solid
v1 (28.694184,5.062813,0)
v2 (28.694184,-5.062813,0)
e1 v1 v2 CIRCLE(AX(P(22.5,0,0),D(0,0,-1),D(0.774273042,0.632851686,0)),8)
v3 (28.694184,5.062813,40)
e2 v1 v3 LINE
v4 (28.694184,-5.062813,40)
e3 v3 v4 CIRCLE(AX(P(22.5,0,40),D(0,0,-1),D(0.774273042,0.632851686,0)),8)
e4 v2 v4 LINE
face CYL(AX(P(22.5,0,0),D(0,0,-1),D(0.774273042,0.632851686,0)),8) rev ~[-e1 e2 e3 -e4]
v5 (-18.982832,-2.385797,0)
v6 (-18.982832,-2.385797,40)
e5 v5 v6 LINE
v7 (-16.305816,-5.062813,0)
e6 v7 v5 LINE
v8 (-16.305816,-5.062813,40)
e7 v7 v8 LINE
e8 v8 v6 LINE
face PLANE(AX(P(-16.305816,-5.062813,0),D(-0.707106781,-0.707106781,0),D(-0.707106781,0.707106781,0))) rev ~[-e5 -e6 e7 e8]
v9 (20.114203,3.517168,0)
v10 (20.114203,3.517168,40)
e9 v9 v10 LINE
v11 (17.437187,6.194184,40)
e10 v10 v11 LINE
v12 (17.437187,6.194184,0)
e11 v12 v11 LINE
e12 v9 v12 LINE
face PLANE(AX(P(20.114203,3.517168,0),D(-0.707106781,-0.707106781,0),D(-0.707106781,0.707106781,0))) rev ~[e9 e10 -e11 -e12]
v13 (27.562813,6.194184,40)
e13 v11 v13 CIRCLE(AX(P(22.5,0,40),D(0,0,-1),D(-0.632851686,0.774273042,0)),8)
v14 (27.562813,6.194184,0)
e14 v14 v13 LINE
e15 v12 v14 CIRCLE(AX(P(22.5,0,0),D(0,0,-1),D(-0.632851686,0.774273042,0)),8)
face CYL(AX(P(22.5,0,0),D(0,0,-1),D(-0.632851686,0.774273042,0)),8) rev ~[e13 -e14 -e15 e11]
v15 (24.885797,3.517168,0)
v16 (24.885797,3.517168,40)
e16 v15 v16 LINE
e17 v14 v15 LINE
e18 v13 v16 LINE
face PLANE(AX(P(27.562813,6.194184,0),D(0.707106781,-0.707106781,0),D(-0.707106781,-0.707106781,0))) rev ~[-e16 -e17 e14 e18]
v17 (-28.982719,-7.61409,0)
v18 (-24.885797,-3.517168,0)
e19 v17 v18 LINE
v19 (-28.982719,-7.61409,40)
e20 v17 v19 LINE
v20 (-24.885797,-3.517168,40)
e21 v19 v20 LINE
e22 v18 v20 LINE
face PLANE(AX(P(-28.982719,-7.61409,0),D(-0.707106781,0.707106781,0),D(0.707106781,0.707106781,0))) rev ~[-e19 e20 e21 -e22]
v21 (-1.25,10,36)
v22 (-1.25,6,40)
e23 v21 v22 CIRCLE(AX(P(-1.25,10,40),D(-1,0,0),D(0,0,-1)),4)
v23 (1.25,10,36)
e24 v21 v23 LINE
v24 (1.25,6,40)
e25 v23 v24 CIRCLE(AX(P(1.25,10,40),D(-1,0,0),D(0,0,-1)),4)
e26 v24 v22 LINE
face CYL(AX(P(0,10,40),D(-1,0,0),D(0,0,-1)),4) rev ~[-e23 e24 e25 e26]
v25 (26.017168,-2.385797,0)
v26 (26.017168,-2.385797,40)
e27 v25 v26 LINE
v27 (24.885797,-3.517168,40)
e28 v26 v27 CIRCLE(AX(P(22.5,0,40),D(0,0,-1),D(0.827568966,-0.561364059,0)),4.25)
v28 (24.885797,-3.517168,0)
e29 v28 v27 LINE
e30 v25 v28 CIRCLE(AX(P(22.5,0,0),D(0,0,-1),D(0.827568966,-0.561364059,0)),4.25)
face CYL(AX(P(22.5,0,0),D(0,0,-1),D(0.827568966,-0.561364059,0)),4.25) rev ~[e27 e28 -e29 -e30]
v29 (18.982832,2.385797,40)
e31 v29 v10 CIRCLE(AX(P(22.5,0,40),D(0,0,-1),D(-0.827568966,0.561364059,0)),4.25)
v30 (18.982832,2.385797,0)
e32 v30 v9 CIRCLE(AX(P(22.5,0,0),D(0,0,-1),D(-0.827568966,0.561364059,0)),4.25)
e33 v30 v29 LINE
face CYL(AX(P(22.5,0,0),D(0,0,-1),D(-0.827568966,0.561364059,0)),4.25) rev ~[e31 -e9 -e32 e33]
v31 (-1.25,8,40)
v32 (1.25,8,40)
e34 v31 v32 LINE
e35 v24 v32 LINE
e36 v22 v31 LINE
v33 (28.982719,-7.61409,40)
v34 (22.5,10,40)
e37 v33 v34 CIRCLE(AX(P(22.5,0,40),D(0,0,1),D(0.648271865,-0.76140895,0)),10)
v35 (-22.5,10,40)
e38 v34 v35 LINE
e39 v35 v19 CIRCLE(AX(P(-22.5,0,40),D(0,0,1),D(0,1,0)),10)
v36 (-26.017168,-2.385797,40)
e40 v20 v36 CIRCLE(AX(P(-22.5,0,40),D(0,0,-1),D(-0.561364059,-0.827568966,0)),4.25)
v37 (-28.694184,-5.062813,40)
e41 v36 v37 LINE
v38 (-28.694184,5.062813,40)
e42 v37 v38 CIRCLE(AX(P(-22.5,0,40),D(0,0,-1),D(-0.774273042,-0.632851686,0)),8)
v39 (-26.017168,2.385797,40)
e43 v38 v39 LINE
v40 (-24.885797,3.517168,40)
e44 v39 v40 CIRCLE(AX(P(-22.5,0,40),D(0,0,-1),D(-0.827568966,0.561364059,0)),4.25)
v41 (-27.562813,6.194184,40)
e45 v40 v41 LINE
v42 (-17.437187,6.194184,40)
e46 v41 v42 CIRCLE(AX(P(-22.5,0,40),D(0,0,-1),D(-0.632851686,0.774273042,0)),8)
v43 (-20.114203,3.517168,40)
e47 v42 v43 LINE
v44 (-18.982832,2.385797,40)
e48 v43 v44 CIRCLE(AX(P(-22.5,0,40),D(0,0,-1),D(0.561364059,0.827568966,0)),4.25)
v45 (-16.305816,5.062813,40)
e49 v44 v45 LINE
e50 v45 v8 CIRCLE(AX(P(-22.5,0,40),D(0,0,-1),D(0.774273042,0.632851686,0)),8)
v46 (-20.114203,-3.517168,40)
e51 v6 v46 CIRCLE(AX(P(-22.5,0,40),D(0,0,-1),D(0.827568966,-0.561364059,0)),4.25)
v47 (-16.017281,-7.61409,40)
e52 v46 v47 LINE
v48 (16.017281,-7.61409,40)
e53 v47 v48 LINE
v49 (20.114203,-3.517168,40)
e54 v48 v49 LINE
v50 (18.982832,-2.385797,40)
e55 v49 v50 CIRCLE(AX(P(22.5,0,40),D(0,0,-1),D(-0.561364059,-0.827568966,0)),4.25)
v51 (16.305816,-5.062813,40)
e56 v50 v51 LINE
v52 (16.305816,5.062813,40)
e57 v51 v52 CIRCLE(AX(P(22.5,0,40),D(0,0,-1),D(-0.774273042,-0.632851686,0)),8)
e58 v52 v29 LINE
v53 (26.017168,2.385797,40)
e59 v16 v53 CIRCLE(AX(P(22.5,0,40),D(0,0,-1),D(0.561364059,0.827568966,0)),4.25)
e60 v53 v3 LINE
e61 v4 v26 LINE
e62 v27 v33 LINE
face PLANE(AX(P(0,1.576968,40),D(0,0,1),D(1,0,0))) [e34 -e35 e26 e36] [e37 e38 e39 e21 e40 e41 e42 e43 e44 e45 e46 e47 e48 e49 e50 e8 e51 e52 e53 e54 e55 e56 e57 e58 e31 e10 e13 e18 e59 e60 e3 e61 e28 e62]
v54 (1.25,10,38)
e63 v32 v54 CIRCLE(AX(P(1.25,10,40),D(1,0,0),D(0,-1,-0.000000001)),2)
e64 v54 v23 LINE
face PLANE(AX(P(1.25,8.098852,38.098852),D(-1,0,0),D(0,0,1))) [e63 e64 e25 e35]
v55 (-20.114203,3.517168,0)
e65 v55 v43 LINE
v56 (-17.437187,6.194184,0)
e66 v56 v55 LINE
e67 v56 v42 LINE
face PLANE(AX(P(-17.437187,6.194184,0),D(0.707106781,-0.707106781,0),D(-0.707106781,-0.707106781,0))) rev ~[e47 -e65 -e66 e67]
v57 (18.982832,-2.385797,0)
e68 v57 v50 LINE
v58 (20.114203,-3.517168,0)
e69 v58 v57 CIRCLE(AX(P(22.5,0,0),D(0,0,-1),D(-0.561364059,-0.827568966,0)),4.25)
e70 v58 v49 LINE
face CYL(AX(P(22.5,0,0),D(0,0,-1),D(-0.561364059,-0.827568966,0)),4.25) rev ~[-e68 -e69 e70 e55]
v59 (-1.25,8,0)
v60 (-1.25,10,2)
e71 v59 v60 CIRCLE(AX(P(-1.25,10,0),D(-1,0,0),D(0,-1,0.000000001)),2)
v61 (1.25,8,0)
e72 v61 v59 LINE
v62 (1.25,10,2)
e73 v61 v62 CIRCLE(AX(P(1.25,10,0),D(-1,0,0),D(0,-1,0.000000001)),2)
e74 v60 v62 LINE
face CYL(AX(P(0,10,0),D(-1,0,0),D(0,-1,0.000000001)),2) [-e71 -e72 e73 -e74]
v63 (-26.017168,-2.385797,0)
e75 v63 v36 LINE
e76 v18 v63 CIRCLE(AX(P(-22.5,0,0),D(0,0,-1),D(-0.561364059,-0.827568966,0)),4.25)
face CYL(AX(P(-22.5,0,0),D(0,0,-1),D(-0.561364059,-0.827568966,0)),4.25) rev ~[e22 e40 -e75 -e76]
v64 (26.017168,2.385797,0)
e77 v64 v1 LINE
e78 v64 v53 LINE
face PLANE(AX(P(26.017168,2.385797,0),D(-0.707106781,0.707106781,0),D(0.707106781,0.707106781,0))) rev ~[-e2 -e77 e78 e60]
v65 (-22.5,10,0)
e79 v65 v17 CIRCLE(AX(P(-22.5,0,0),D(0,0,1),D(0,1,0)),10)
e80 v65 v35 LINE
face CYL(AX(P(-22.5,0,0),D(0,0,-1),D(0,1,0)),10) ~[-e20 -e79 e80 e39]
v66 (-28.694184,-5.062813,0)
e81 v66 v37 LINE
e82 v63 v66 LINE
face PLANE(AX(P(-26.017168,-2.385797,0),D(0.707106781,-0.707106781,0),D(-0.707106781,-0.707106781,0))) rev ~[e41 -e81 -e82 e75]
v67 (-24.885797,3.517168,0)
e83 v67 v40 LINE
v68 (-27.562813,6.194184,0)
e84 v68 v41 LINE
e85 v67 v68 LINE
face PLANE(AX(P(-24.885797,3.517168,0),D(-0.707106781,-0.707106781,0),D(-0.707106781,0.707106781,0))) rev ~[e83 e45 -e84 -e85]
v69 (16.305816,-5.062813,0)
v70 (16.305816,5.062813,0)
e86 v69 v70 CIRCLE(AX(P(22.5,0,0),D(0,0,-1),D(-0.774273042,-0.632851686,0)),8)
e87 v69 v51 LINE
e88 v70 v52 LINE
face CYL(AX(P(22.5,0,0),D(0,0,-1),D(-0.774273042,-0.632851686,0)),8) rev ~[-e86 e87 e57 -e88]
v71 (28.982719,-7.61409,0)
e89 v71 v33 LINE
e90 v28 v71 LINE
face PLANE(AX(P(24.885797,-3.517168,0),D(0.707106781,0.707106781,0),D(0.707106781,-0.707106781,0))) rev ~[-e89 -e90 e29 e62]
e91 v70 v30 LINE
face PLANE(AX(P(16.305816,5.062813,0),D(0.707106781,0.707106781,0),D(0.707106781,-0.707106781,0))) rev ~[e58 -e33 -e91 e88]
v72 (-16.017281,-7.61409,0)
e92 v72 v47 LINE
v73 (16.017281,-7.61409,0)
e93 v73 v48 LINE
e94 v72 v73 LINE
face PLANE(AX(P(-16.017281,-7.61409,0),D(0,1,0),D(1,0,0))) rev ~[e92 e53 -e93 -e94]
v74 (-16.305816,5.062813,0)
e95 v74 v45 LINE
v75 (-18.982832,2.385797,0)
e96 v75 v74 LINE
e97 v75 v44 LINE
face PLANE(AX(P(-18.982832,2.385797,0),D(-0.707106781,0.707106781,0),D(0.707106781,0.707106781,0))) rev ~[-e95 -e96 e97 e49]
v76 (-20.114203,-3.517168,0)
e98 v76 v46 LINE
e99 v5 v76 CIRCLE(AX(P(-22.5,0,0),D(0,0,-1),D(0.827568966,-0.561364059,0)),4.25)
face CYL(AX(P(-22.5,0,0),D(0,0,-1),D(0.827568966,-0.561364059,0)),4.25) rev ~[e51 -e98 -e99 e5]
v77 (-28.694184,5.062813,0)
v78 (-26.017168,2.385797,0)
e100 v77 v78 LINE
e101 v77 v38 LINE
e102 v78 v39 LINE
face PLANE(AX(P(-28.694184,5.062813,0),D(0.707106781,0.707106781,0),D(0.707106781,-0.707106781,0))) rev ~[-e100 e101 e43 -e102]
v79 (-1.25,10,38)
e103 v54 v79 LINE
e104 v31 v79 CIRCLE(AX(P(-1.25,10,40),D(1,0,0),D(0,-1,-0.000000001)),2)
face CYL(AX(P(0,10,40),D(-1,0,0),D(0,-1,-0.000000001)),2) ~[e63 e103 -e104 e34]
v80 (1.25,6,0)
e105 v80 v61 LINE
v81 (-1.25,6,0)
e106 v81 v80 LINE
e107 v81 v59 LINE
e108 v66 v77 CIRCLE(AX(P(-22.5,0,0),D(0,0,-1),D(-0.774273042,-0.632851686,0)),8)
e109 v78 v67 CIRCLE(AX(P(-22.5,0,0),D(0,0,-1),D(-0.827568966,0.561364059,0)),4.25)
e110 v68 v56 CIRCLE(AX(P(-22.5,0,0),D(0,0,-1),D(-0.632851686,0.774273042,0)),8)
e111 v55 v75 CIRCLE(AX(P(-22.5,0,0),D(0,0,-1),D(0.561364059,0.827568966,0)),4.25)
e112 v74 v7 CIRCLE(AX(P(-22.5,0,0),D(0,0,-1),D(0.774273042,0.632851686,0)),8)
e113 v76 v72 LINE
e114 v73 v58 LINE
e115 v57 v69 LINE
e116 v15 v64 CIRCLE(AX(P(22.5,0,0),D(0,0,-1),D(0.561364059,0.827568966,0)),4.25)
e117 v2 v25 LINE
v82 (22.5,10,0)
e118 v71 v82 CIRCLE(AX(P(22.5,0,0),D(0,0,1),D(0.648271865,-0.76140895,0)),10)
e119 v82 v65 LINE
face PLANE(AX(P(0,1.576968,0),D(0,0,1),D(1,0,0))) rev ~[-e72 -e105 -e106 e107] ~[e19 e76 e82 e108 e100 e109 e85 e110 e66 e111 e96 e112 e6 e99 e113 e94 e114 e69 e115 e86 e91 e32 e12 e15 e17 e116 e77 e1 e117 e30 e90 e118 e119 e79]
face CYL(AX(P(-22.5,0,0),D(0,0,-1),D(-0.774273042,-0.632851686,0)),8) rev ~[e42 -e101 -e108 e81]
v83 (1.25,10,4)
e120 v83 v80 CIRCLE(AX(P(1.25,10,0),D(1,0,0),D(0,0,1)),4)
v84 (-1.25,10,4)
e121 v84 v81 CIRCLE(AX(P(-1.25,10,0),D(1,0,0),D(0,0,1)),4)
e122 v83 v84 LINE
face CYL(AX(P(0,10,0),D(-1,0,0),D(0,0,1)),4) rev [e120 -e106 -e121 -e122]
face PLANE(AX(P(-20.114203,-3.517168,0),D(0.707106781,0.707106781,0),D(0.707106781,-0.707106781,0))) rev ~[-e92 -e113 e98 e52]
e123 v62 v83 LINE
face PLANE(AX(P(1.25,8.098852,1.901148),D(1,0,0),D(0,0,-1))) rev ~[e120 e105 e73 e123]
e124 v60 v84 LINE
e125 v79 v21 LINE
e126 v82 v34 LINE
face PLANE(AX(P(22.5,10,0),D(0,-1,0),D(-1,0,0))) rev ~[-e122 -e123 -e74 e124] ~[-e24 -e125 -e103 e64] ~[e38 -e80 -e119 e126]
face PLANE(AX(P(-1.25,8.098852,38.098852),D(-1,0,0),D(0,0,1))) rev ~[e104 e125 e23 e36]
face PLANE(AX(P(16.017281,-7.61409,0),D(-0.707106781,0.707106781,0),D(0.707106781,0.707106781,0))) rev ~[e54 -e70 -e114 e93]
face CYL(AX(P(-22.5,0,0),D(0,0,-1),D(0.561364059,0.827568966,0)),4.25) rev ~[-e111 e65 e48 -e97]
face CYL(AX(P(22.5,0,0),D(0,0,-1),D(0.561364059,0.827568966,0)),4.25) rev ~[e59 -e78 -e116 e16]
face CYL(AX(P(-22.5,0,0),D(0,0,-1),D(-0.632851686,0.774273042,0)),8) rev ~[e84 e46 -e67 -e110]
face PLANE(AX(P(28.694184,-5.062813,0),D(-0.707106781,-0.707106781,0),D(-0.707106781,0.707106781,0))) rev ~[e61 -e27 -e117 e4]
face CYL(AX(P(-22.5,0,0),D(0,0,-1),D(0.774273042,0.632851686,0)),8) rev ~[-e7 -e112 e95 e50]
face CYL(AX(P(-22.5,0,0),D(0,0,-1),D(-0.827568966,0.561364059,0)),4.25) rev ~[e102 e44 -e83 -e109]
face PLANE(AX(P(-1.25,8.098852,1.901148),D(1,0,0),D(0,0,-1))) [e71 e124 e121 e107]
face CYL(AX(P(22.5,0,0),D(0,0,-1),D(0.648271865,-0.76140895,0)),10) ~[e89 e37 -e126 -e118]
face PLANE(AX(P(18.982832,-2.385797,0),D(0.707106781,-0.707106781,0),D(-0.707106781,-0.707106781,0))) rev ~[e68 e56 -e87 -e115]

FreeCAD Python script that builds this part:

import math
import FreeCAD as App
import Part
import Sketcher
from FreeCAD import Vector
Q = App.Units.Quantity

doc = App.newDocument("Part")
body = doc.addObject("PartDesign::Body", "Body")

# Sketch on XY plane
sketch1 = body.newObject("Sketcher::SketchObject", "Sketch")
sketch1.AttachmentSupport = (doc.getObject("XY_Plane"), [""])
sketch1.MapMode = "FlatFace"
sketch1.addGeometry([
    Part.LineSegment(Vector(-19, 2.4, 0), Vector(-16.3, 5.1, 0)),  # 0
    Part.ArcOfCircle(Part.Circle(Vector(-22.5, 0, 0), Vector(0, 0, 1), 8), math.radians(-39), math.radians(39)),  # 1
    Part.LineSegment(Vector(-16.3, -5.1, 0), Vector(-19, -2.4, 0)),  # 2
    Part.ArcOfCircle(Part.Circle(Vector(-22.5, 0, 0), Vector(0, 0, 1), 4.2), math.radians(-56), math.radians(-34)),  # 3
    Part.LineSegment(Vector(-20.1, -3.5, 0), Vector(-16, -7.6, 0)),  # 4
    Part.LineSegment(Vector(-16, -7.6, 0), Vector(16, -7.6, 0)),  # 5
    Part.LineSegment(Vector(16, -7.6, 0), Vector(20.1, -3.5, 0)),  # 6
    Part.ArcOfCircle(Part.Circle(Vector(22.5, 0, 0), Vector(0, 0, 1), 4.2), math.radians(-146), math.radians(-124)),  # 7
    Part.LineSegment(Vector(19, -2.4, 0), Vector(16.3, -5.1, 0)),  # 8
    Part.ArcOfCircle(Part.Circle(Vector(22.5, 0, 0), Vector(0, 0, 1), 8), math.radians(141), math.radians(219)),  # 9
    Part.LineSegment(Vector(16.3, 5.1, 0), Vector(19, 2.4, 0)),  # 10
    Part.ArcOfCircle(Part.Circle(Vector(22.5, 0, 0), Vector(0, 0, 1), 4.2), math.radians(124), math.radians(146)),  # 11
    Part.LineSegment(Vector(20.1, 3.5, 0), Vector(17.4, 6.2, 0)),  # 12
    Part.ArcOfCircle(Part.Circle(Vector(22.5, 0, 0), Vector(0, 0, 1), 8), math.radians(51), math.radians(129)),  # 13
    Part.LineSegment(Vector(27.6, 6.2, 0), Vector(24.9, 3.5, 0)),  # 14
    Part.ArcOfCircle(Part.Circle(Vector(22.5, 0, 0), Vector(0, 0, 1), 4.2), math.radians(34), math.radians(56)),  # 15
    Part.LineSegment(Vector(26, 2.4, 0), Vector(28.7, 5.1, 0)),  # 16
    Part.ArcOfCircle(Part.Circle(Vector(22.5, 0, 0), Vector(0, 0, 1), 8), math.radians(-39), math.radians(39)),  # 17
    Part.LineSegment(Vector(28.7, -5.1, 0), Vector(26, -2.4, 0)),  # 18
    Part.ArcOfCircle(Part.Circle(Vector(22.5, 0, 0), Vector(0, 0, 1), 4.2), math.radians(-56), math.radians(-34)),  # 19
    Part.LineSegment(Vector(24.9, -3.5, 0), Vector(29, -7.6, 0)),  # 20
    Part.ArcOfCircle(Part.Circle(Vector(22.5, 0, 0), Vector(0, 0, 1), 10), math.radians(-50), math.radians(90)),  # 21
    Part.LineSegment(Vector(22.5, 10, 0), Vector(-22.5, 10, 0)),  # 22
    Part.ArcOfCircle(Part.Circle(Vector(-22.5, 0, 0), Vector(0, 0, 1), 10), math.radians(90), math.radians(230)),  # 23
    Part.LineSegment(Vector(-29, -7.6, 0), Vector(-24.9, -3.5, 0)),  # 24
    Part.ArcOfCircle(Part.Circle(Vector(-22.5, 0, 0), Vector(0, 0, 1), 4.2), math.radians(-146), math.radians(-124)),  # 25
    Part.LineSegment(Vector(-26, -2.4, 0), Vector(-28.7, -5.1, 0)),  # 26
    Part.ArcOfCircle(Part.Circle(Vector(-22.5, 0, 0), Vector(0, 0, 1), 8), math.radians(141), math.radians(219)),  # 27
    Part.LineSegment(Vector(-28.7, 5.1, 0), Vector(-26, 2.4, 0)),  # 28
    Part.ArcOfCircle(Part.Circle(Vector(-22.5, 0, 0), Vector(0, 0, 1), 4.2), math.radians(124), math.radians(146)),  # 29
    Part.LineSegment(Vector(-24.9, 3.5, 0), Vector(-27.6, 6.2, 0)),  # 30
    Part.ArcOfCircle(Part.Circle(Vector(-22.5, 0, 0), Vector(0, 0, 1), 8), math.radians(51), math.radians(129)),  # 31
    Part.LineSegment(Vector(-17.4, 6.2, 0), Vector(-20.1, 3.5, 0)),  # 32
    Part.ArcOfCircle(Part.Circle(Vector(-22.5, 0, 0), Vector(0, 0, 1), 4.2), math.radians(34), math.radians(56)),  # 33
], False)
sketch1.addConstraint([
    Sketcher.Constraint("Coincident", 0, 2, 1, 2),
    Sketcher.Constraint("Coincident", 1, 1, 2, 1),
    Sketcher.Constraint("Coincident", 2, 2, 3, 2),
    Sketcher.Constraint("Coincident", 3, 1, 4, 1),
    Sketcher.Constraint("Coincident", 4, 2, 5, 1),
    Sketcher.Constraint("Coincident", 5, 2, 6, 1),
    Sketcher.Constraint("Coincident", 6, 2, 7, 2),
    Sketcher.Constraint("Coincident", 7, 1, 8, 1),
    Sketcher.Constraint("Coincident", 8, 2, 9, 2),
    Sketcher.Constraint("Coincident", 9, 1, 10, 1),
    Sketcher.Constraint("Coincident", 10, 2, 11, 2),
    Sketcher.Constraint("Coincident", 11, 1, 12, 1),
    Sketcher.Constraint("Coincident", 12, 2, 13, 2),
    Sketcher.Constraint("Coincident", 13, 1, 14, 1),
    Sketcher.Constraint("Coincident", 14, 2, 15, 2),
    Sketcher.Constraint("Coincident", 15, 1, 16, 1),
    Sketcher.Constraint("Coincident", 16, 2, 17, 2),
    Sketcher.Constraint("Coincident", 17, 1, 18, 1),
    Sketcher.Constraint("Coincident", 18, 2, 19, 2),
    Sketcher.Constraint("Coincident", 19, 1, 20, 1),
    Sketcher.Constraint("Coincident", 20, 2, 21, 1),
    Sketcher.Constraint("Tangent", 21, 2, 22, 1),
    Sketcher.Constraint("Tangent", 22, 2, 23, 1),
    Sketcher.Constraint("Coincident", 23, 2, 24, 1),
    Sketcher.Constraint("Coincident", 24, 2, 25, 2),
    Sketcher.Constraint("Coincident", 25, 1, 26, 1),
    Sketcher.Constraint("Coincident", 26, 2, 27, 2),
    Sketcher.Constraint("Coincident", 27, 1, 28, 1),
    Sketcher.Constraint("Coincident", 28, 2, 29, 2),
    Sketcher.Constraint("Coincident", 29, 1, 30, 1),
    Sketcher.Constraint("Coincident", 30, 2, 31, 2),
    Sketcher.Constraint("Coincident", 31, 1, 32, 1),
    Sketcher.Constraint("Coincident", 32, 2, 33, 2),
    Sketcher.Constraint("Coincident", 33, 1, 0, 1),
    Sketcher.Constraint("Horizontal", 5),
    Sketcher.Constraint("Horizontal", 22),
    Sketcher.Constraint("Coincident", 3, 3, 1, 3),
    Sketcher.Constraint("Coincident", 9, 3, 7, 3),
    Sketcher.Constraint("Coincident", 11, 3, 7, 3),
    Sketcher.Constraint("Coincident", 13, 3, 7, 3),
    Sketcher.Constraint("Coincident", 15, 3, 7, 3),
    Sketcher.Constraint("Coincident", 17, 3, 7, 3),
    Sketcher.Constraint("Coincident", 19, 3, 7, 3),
    Sketcher.Constraint("Coincident", 21, 3, 7, 3),
    Sketcher.Constraint("Coincident", 23, 3, 1, 3),
    Sketcher.Constraint("Coincident", 25, 3, 1, 3),
    Sketcher.Constraint("Coincident", 27, 3, 1, 3),
    Sketcher.Constraint("Coincident", 29, 3, 1, 3),
    Sketcher.Constraint("Coincident", 31, 3, 1, 3),
    Sketcher.Constraint("Coincident", 33, 3, 1, 3),
    Sketcher.Constraint("Equal", 3, 7),
    Sketcher.Constraint("Equal", 1, 9),
    Sketcher.Constraint("Equal", 7, 11),
    Sketcher.Constraint("Equal", 9, 13),
    Sketcher.Constraint("Equal", 11, 15),
    Sketcher.Constraint("Equal", 13, 17),
    Sketcher.Constraint("Equal", 15, 19),
    Sketcher.Constraint("Equal", 21, 23),
    Sketcher.Constraint("Equal", 19, 25),
    Sketcher.Constraint("Equal", 17, 27),
    Sketcher.Constraint("Equal", 25, 29),
    Sketcher.Constraint("Equal", 27, 31),
    Sketcher.Constraint("Equal", 29, 33),
    Sketcher.Constraint("Symmetric", 1, 3, 7, 3, -1, 1),
    Sketcher.Constraint("Perpendicular", 0, 2),
    Sketcher.Constraint("Parallel", 2, 4),
    Sketcher.Constraint("Perpendicular", 4, 6),
    Sketcher.Constraint("Parallel", 6, 8),
    Sketcher.Constraint("Perpendicular", 8, 10),
    Sketcher.Constraint("Parallel", 10, 12),
    Sketcher.Constraint("Perpendicular", 12, 14),
    Sketcher.Constraint("Parallel", 14, 16),
    Sketcher.Constraint("Perpendicular", 16, 18),
    Sketcher.Constraint("Parallel", 18, 20),
    Sketcher.Constraint("Perpendicular", 20, 24),
    Sketcher.Constraint("Parallel", 24, 26),
    Sketcher.Constraint("Perpendicular", 26, 28),
    Sketcher.Constraint("Parallel", 28, 30),
    Sketcher.Constraint("Perpendicular", 30, 32),
    Sketcher.Constraint("Horizontal", 3, 1, 6, 2),
    Sketcher.Constraint("Horizontal", 2, 2, 7, 1),
    Sketcher.Constraint("Horizontal", 1, 1, 8, 2),
    Sketcher.Constraint("Horizontal", 0, 2, 9, 1),
    Sketcher.Constraint("Horizontal", 12, 2, 13, 1),
    Sketcher.Constraint("Horizontal", 10, 2, 15, 1),
    Sketcher.Constraint("Horizontal", 8, 2, 17, 1),
    Sketcher.Constraint("Horizontal", 6, 2, 19, 1),
    Sketcher.Constraint("Horizontal", 5, 2, 20, 2),
    Sketcher.Constraint("Horizontal", 20, 2, 23, 2),
    Sketcher.Constraint("Horizontal", 18, 2, 25, 1),
    Sketcher.Constraint("Horizontal", 16, 2, 27, 1),
    Sketcher.Constraint("Horizontal", 14, 2, 29, 1),
    Sketcher.Constraint("Horizontal", 30, 2, 31, 1),
    Sketcher.Constraint("Vertical", 0, 2, 1, 1),
    Sketcher.Constraint("Vertical", 6, 2, 11, 1),
    Sketcher.Constraint("Equal", 10, 12),
    Sketcher.Constraint("Radius", 1, Q("8 mm")),
    Sketcher.Constraint("Radius", 21, Q("10 mm")),
    Sketcher.Constraint("DistanceX", 22, 2, 22, 1, Q("45 mm")),
    Sketcher.Constraint("Radius", 3, Q("4.25 mm")),
    Sketcher.Constraint("Distance", 4, Q("5.793922 mm")),
])
pad1 = body.newObject("PartDesign::Pad", "Pad")
pad1.Profile = sketch1
pad1.Length = 40

# Sketch on YZ plane
sketch2 = body.newObject("Sketcher::SketchObject", "Sketch001")
sketch2.AttachmentSupport = (doc.getObject("YZ_Plane"), [""])
sketch2.MapMode = "FlatFace"
sketch2.addGeometry([
    Part.LineSegment(Vector(8, 40, 0), Vector(6, 40, 0)),  # 0
    Part.ArcOfCircle(Part.Circle(Vector(10, 40, 0), Vector(0, 0, 1), 4), math.radians(180), math.radians(270)),  # 1
    Part.LineSegment(Vector(10, 36, 0), Vector(10, 38, 0)),  # 2
    Part.ArcOfCircle(Part.Circle(Vector(10, 40, 0), Vector(0, 0, 1), 2), math.radians(-180), math.radians(-90)),  # 3
    Part.LineSegment(Vector(10, 2, 0), Vector(10, 4, 0)),  # 4
    Part.ArcOfCircle(Part.Circle(Vector(10, 0, 0), Vector(0, 0, 1), 4), math.radians(90), math.radians(180)),  # 5
    Part.LineSegment(Vector(6, 0, 0), Vector(8, 0, 0)),  # 6
    Part.ArcOfCircle(Part.Circle(Vector(10, 0, 0), Vector(0, 0, 1), 2), math.radians(90), math.radians(180)),  # 7
], False)
sketch2.addConstraint([
    Sketcher.Constraint("Coincident", 0, 2, 1, 1),
    Sketcher.Constraint("Coincident", 1, 2, 2, 1),
    Sketcher.Constraint("Coincident", 2, 2, 3, 2),
    Sketcher.Constraint("Coincident", 3, 1, 0, 1),
    Sketcher.Constraint("Coincident", 4, 2, 5, 1),
    Sketcher.Constraint("Coincident", 5, 2, 6, 1),
    Sketcher.Constraint("Coincident", 6, 2, 7, 2),
    Sketcher.Constraint("Coincident", 7, 1, 4, 1),
    Sketcher.Constraint("Horizontal", 0),
    Sketcher.Constraint("Vertical", 2),
    Sketcher.Constraint("Vertical", 4),
    Sketcher.Constraint("Horizontal", 6),
    Sketcher.Constraint("Coincident", 3, 3, 1, 3),
    Sketcher.Constraint("Coincident", 7, 3, 5, 3),
    Sketcher.Constraint("Equal", 1, 5),
    Sketcher.Constraint("Equal", 3, 7),
    Sketcher.Constraint("PointOnObject", 5, 3, -1),
    Sketcher.Constraint("PointOnObject", 5, 2, -1),
    Sketcher.Constraint("Horizontal", 3, 3, 0, 2),
    Sketcher.Constraint("Vertical", 3, 3, 5, 3),
    Sketcher.Constraint("Vertical", 7, 3, 1, 2),
    Sketcher.Constraint("Vertical", 2, 2, 4, 2),
    Sketcher.Constraint("Radius", 1, Q("4 mm")),
    Sketcher.Constraint("Radius", 3, Q("2 mm")),
    Sketcher.Constraint("DistanceX", -1, 1, 1, 3, Q("10 mm")),
    Sketcher.Constraint("DistanceY", -1, 1, 1, 3, Q("40 mm")),
])
pocket1 = body.newObject("PartDesign::Pocket", "Pocket")
pocket1.Profile = sketch2
pocket1.Type = "TwoLengths"
pocket1.Length = 1.25
pocket1.Length2 = 1.25
pocket1.Reversed = True

doc.recompute()
